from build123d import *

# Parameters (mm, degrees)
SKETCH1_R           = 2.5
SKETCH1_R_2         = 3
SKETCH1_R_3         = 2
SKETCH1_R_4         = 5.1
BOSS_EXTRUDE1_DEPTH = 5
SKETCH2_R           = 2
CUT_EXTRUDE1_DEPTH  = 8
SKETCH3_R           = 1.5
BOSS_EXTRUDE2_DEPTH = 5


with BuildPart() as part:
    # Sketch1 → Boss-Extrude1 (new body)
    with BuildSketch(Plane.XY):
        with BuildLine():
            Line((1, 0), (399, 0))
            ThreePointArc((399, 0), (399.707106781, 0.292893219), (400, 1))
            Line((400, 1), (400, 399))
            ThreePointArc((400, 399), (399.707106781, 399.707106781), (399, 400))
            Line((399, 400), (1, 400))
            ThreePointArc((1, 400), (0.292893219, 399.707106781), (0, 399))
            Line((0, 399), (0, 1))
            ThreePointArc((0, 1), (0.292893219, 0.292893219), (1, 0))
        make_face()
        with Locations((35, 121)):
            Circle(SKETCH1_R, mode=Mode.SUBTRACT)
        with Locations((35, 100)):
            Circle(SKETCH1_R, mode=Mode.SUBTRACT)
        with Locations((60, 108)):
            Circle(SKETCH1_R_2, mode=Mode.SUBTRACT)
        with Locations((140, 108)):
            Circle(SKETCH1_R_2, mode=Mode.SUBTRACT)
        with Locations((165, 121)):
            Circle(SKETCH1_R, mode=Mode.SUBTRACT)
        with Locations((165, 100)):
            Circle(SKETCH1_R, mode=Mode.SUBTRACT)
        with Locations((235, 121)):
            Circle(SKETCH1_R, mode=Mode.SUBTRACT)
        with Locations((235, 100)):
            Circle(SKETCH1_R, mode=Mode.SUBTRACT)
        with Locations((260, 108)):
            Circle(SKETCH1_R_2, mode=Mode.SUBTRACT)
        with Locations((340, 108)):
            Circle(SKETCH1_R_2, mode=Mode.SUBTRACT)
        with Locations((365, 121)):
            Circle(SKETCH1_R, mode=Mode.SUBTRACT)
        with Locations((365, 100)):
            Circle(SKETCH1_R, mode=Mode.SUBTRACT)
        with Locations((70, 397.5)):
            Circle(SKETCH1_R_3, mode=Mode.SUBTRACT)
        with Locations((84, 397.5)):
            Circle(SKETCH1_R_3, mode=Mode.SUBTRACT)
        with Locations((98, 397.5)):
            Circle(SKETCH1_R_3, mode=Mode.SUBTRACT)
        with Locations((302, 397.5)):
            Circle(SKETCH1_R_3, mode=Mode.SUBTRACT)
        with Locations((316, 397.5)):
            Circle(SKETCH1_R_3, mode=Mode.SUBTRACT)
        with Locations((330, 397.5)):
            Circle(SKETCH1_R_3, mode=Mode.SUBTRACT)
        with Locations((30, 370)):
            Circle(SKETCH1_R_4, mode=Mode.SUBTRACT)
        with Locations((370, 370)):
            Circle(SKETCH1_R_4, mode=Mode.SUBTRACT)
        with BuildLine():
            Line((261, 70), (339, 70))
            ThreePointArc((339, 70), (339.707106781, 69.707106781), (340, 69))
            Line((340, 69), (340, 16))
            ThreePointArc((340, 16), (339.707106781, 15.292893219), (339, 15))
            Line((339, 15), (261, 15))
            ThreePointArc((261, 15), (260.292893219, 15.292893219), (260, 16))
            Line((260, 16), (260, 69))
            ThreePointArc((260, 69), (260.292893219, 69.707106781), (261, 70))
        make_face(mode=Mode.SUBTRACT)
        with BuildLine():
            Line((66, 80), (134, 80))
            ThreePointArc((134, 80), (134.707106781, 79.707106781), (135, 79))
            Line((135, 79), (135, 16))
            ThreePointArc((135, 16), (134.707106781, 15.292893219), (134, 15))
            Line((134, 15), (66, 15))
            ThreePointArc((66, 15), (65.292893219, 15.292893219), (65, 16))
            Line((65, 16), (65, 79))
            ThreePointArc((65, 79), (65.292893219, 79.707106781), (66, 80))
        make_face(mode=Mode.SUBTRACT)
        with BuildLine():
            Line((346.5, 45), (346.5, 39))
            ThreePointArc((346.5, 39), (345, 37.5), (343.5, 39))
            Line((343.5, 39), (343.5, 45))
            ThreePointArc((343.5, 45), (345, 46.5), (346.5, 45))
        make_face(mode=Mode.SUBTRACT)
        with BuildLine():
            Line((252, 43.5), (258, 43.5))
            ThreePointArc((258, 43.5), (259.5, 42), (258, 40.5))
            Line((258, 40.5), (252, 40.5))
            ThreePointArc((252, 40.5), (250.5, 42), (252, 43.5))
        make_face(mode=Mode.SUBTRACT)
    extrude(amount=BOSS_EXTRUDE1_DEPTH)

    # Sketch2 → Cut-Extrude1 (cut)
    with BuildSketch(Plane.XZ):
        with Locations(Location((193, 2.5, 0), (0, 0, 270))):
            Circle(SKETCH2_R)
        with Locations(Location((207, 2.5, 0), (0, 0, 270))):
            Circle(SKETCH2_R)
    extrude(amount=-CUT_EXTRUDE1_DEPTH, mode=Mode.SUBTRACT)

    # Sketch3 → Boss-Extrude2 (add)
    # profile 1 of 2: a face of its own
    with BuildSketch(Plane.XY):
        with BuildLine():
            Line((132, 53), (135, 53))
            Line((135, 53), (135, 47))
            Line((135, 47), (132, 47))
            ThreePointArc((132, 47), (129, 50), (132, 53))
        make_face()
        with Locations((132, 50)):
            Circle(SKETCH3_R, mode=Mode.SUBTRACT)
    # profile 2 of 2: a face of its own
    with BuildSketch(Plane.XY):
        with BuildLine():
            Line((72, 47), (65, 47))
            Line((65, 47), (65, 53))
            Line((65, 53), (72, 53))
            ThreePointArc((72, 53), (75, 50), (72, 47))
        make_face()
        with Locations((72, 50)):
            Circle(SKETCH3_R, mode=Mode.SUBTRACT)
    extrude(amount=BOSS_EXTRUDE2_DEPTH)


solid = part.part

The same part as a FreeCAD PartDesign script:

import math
import FreeCAD as App
import Part
import Sketcher
from FreeCAD import Vector
Q = App.Units.Quantity

doc = App.newDocument("Part")
body = doc.addObject("PartDesign::Body", "Body")

sketch1 = body.newObject("Sketcher::SketchObject", "Sketch")
sketch1.AttachmentSupport = (doc.getObject("XY_Plane"), [""])
sketch1.MapMode = "FlatFace"
sketch1.addGeometry([
    Part.LineSegment(Vector(1, 0, 0), Vector(399, 0, 0)),
    Part.ArcOfCircle(Part.Circle(Vector(399, 1, 0), Vector(0, 0, 1), 1), math.radians(-90), math.radians(0)),
    Part.LineSegment(Vector(400, 1, 0), Vector(400, 399, 0)),
    Part.ArcOfCircle(Part.Circle(Vector(399, 399, 0), Vector(0, 0, 1), 1), math.radians(0), math.radians(90)),
    Part.LineSegment(Vector(399, 400, 0), Vector(1, 400, 0)),
    Part.ArcOfCircle(Part.Circle(Vector(1, 399, 0), Vector(0, 0, 1), 1), math.radians(90), math.radians(180)),
    Part.LineSegment(Vector(0, 399, 0), Vector(0, 1, 0)),
    Part.ArcOfCircle(Part.Circle(Vector(1, 1, 0), Vector(0, 0, 1), 1), math.radians(-180), math.radians(-90)),
    Part.ArcOfCircle(Part.Circle(Vector(66, 79, 0), Vector(0, 0, 1), 1), math.radians(90), math.radians(180)),
    Part.LineSegment(Vector(66, 80, 0), Vector(134, 80, 0)),
    Part.ArcOfCircle(Part.Circle(Vector(134, 79, 0), Vector(0, 0, 1), 1), math.radians(0), math.radians(90)),
    Part.LineSegment(Vector(135, 79, 0), Vector(135, 16, 0)),
    Part.ArcOfCircle(Part.Circle(Vector(134, 16, 0), Vector(0, 0, 1), 1), math.radians(-90), math.radians(0)),
    Part.LineSegment(Vector(134, 15, 0), Vector(66, 15, 0)),
    Part.ArcOfCircle(Part.Circle(Vector(66, 16, 0), Vector(0, 0, 1), 1), math.radians(-180), math.radians(-90)),
    Part.LineSegment(Vector(65, 16, 0), Vector(65, 79, 0)),
    Part.Circle(Vector(35, 100, 0), Vector(0, 0, 1), 2.5),
    Part.Circle(Vector(60, 108, 0), Vector(0, 0, 1), 3),
    Part.Circle(Vector(140, 108, 0), Vector(0, 0, 1), 3),
    Part.Circle(Vector(165, 100, 0), Vector(0, 0, 1), 2.5),
    Part.Circle(Vector(35, 121, 0), Vector(0, 0, 1), 2.5),
    Part.Circle(Vector(165, 121, 0), Vector(0, 0, 1), 2.5),
    Part.ArcOfCircle(Part.Circle(Vector(252, 42, 0), Vector(0, 0, 1), 1.5), math.radians(90), math.radians(270)),
    Part.LineSegment(Vector(252, 43.5, 0), Vector(258, 43.5, 0)),
    Part.ArcOfCircle(Part.Circle(Vector(258, 42, 0), Vector(0, 0, 1), 1.5), math.radians(-90), math.radians(90)),
    Part.LineSegment(Vector(258, 40.5, 0), Vector(252, 40.5, 0)),
    Part.Circle(Vector(235, 100, 0), Vector(0, 0, 1), 2.5),
    Part.Circle(Vector(260, 108, 0), Vector(0, 0, 1), 3),
    Part.ArcOfCircle(Part.Circle(Vector(261, 69, 0), Vector(0, 0, 1), 1), math.radians(90), math.radians(180)),
    Part.LineSegment(Vector(261, 70, 0), Vector(339, 70, 0)),
    Part.ArcOfCircle(Part.Circle(Vector(339, 69, 0), Vector(0, 0, 1), 1), math.radians(0), math.radians(90)),
    Part.LineSegment(Vector(340, 69, 0), Vector(340, 16, 0)),
    Part.ArcOfCircle(Part.Circle(Vector(339, 16, 0), Vector(0, 0, 1), 1), math.radians(-90), math.radians(0)),
    Part.LineSegment(Vector(339, 15, 0), Vector(261, 15, 0)),
    Part.ArcOfCircle(Part.Circle(Vector(261, 16, 0), Vector(0, 0, 1), 1), math.radians(-180), math.radians(-90)),
    Part.LineSegment(Vector(260, 16, 0), Vector(260, 69, 0)),
    Part.ArcOfCircle(Part.Circle(Vector(345, 45, 0), Vector(0, 0, 1), 1.5), math.radians(0), math.radians(180)),
    Part.LineSegment(Vector(346.5, 45, 0), Vector(346.5, 39, 0)),
    Part.ArcOfCircle(Part.Circle(Vector(345, 39, 0), Vector(0, 0, 1), 1.5), math.radians(180), math.radians(360)),
    Part.LineSegment(Vector(343.5, 39, 0), Vector(343.5, 45, 0)),
    Part.Circle(Vector(340, 108, 0), Vector(0, 0, 1), 3),
    Part.Circle(Vector(365, 100, 0), Vector(0, 0, 1), 2.5),
    Part.Circle(Vector(235, 121, 0), Vector(0, 0, 1), 2.5),
    Part.Circle(Vector(365, 121, 0), Vector(0, 0, 1), 2.5),
    Part.Circle(Vector(30, 370, 0), Vector(0, 0, 1), 5.1),
    Part.Circle(Vector(70, 397.5, 0), Vector(0, 0, 1), 2),
    Part.Circle(Vector(84, 397.5, 0), Vector(0, 0, 1), 2),
    Part.Circle(Vector(98, 397.5, 0), Vector(0, 0, 1), 2),
    Part.Circle(Vector(302, 397.5, 0), Vector(0, 0, 1), 2),
    Part.Circle(Vector(316, 397.5, 0), Vector(0, 0, 1), 2),
    Part.Circle(Vector(330, 397.5, 0), Vector(0, 0, 1), 2),
    Part.Circle(Vector(370, 370, 0), Vector(0, 0, 1), 5.1),
], False)
sketch1.addConstraint([
    Sketcher.Constraint("Tangent", 0, 2, 1, 1),
    Sketcher.Constraint("Tangent", 1, 2, 2, 1),
    Sketcher.Constraint("Tangent", 2, 2, 3, 1),
    Sketcher.Constraint("Tangent", 3, 2, 4, 1),
    Sketcher.Constraint("Tangent", 4, 2, 5, 1),
    Sketcher.Constraint("Tangent", 5, 2, 6, 1),
    Sketcher.Constraint("Tangent", 6, 2, 7, 1),
    Sketcher.Constraint("Tangent", 7, 2, 0, 1),
    Sketcher.Constraint("Tangent", 8, 1, 9, 1),
    Sketcher.Constraint("Tangent", 9, 2, 10, 2),
    Sketcher.Constraint("Tangent", 10, 1, 11, 1),
    Sketcher.Constraint("Tangent", 11, 2, 12, 2),
    Sketcher.Constraint("Tangent", 12, 1, 13, 1),
    Sketcher.Constraint("Tangent", 13, 2, 14, 2),
    Sketcher.Constraint("Tangent", 14, 1, 15, 1),
    Sketcher.Constraint("Tangent", 15, 2, 8, 2),
    Sketcher.Constraint("Tangent", 22, 1, 23, 1),
    Sketcher.Constraint("Tangent", 23, 2, 24, 2),
    Sketcher.Constraint("Tangent", 24, 1, 25, 1),
    Sketcher.Constraint("Tangent", 25, 2, 22, 2),
    Sketcher.Constraint("Tangent", 28, 1, 29, 1),
    Sketcher.Constraint("Tangent", 29, 2, 30, 2),
    Sketcher.Constraint("Tangent", 30, 1, 31, 1),
    Sketcher.Constraint("Tangent", 31, 2, 32, 2),
    Sketcher.Constraint("Tangent", 32, 1, 33, 1),
    Sketcher.Constraint("Tangent", 33, 2, 34, 2),
    Sketcher.Constraint("Tangent", 34, 1, 35, 1),
    Sketcher.Constraint("Tangent", 35, 2, 28, 2),
    Sketcher.Constraint("Tangent", 36, 1, 37, 1),
    Sketcher.Constraint("Tangent", 37, 2, 38, 2),
    Sketcher.Constraint("Tangent", 38, 1, 39, 1),
    Sketcher.Constraint("Tangent", 39, 2, 36, 2),
    Sketcher.Constraint("Horizontal", 0),
    Sketcher.Constraint("Vertical", 2),
    Sketcher.Constraint("Horizontal", 4),
    Sketcher.Constraint("Vertical", 6),
    Sketcher.Constraint("Horizontal", 9),
    Sketcher.Constraint("Vertical", 11),
    Sketcher.Constraint("Horizontal", 13),
    Sketcher.Constraint("Vertical", 15),
    Sketcher.Constraint("Horizontal", 23),
    Sketcher.Constraint("Horizontal", 25),
    Sketcher.Constraint("Horizontal", 29),
    Sketcher.Constraint("Vertical", 31),
    Sketcher.Constraint("Horizontal", 33),
    Sketcher.Constraint("Vertical", 35),
    Sketcher.Constraint("Vertical", 37),
    Sketcher.Constraint("Vertical", 39),
    Sketcher.Constraint("Equal", 1, 3),
    Sketcher.Constraint("Equal", 3, 5),
    Sketcher.Constraint("Equal", 5, 7),
    Sketcher.Constraint("Equal", 7, 8),
    Sketcher.Constraint("Equal", 8, 10),
    Sketcher.Constraint("Equal", 10, 12),
    Sketcher.Constraint("Equal", 12, 14),
    Sketcher.Constraint("Equal", 17, 18),
    Sketcher.Constraint("Equal", 16, 19),
    Sketcher.Constraint("Equal", 19, 20),
    Sketcher.Constraint("Equal", 20, 21),
    Sketcher.Constraint("Equal", 21, 26),
    Sketcher.Constraint("Equal", 18, 27),
    Sketcher.Constraint("Equal", 14, 28),
    Sketcher.Constraint("Equal", 28, 30),
    Sketcher.Constraint("Equal", 30, 32),
    Sketcher.Constraint("Equal", 32, 34),
    Sketcher.Constraint("Equal", 24, 36),
    Sketcher.Constraint("Equal", 27, 40),
    Sketcher.Constraint("Equal", 26, 41),
    Sketcher.Constraint("Equal", 41, 42),
    Sketcher.Constraint("Equal", 42, 43),
    Sketcher.Constraint("Equal", 45, 46),
    Sketcher.Constraint("Equal", 46, 47),
    Sketcher.Constraint("Equal", 47, 48),
    Sketcher.Constraint("Equal", 48, 49),
    Sketcher.Constraint("Equal", 49, 50),
    Sketcher.Constraint("Equal", 44, 51),
    Sketcher.Constraint("PointOnObject", 0, 2, -1),
    Sketcher.Constraint("PointOnObject", 5, 2, -2),
    Sketcher.Constraint("Horizontal", 17, 3, 18, 3),
    Sketcher.Constraint("Horizontal", 16, 3, 19, 3),
    Sketcher.Constraint("Horizontal", 20, 3, 21, 3),
    Sketcher.Constraint("Horizontal", 19, 3, 26, 3),
    Sketcher.Constraint("Horizontal", 18, 3, 27, 3),
    Sketcher.Constraint("Horizontal", 14, 3, 32, 3),
    Sketcher.Constraint("Horizontal", 27, 3, 40, 3),
    Sketcher.Constraint("Horizontal", 26, 3, 41, 3),
    Sketcher.Constraint("Horizontal", 21, 3, 42, 3),
    Sketcher.Constraint("Horizontal", 42, 3, 43, 3),
    Sketcher.Constraint("Horizontal", 45, 3, 46, 3),
    Sketcher.Constraint("Horizontal", 46, 3, 47, 3),
    Sketcher.Constraint("Horizontal", 47, 3, 48, 3),
    Sketcher.Constraint("Horizontal", 48, 3, 49, 3),
    Sketcher.Constraint("Horizontal", 49, 3, 50, 3),
    Sketcher.Constraint("Horizontal", 44, 3, 51, 3),
    Sketcher.Constraint("Vertical", 16, 3, 20, 3),
    Sketcher.Constraint("Vertical", 19, 3, 21, 3),
    Sketcher.Constraint("Vertical", 26, 3, 42, 3),
    Sketcher.Constraint("Vertical", 41, 3, 43, 3),
    Sketcher.Constraint("Vertical", 40, 3, 30, 1),
    Sketcher.Constraint("Vertical", 27, 3, 34, 1),
    Sketcher.Constraint("Equal", 4, 2),
    Sketcher.Constraint("Equal", 25, 37),
    Sketcher.Constraint("Diameter", 16, Q("5 mm")),
    Sketcher.Constraint("Diameter", 17, Q("6 mm")),
    Sketcher.Constraint("Diameter", 45, Q("4 mm")),
    Sketcher.Constraint("Radius", 1, Q("1 mm")),
    Sketcher.Constraint("Diameter", 44, Q("10.2 mm")),
    Sketcher.Constraint("Radius", 22, Q("1.5 mm")),
    Sketcher.Constraint("DistanceX", 0, 1, 0, 2, Q("398 mm")),
    Sketcher.Constraint("DistanceX", 9, 1, 9, 2, Q("68 mm")),
    Sketcher.Constraint("DistanceX", 23, 1, 23, 2, Q("6 mm")),
    Sketcher.Constraint("DistanceX", 29, 1, 29, 2, Q("78 mm")),
    Sketcher.Constraint("DistanceY", 11, 2, 11, 1, Q("63 mm")),
    Sketcher.Constraint("DistanceY", 31, 2, 31, 1, Q("53 mm")),
    Sketcher.Constraint("DistanceX", -1, 1, 8, 3, Q("66 mm")),
    Sketcher.Constraint("DistanceY", -1, 1, 8, 3, Q("79 mm")),
    Sketcher.Constraint("DistanceX", -1, 1, 16, 3, Q("35 mm")),
    Sketcher.Constraint("DistanceY", -1, 1, 16, 3, Q("100 mm")),
    Sketcher.Constraint("DistanceX", -1, 1, 17, 3, Q("60 mm")),
    Sketcher.Constraint("DistanceY", -1, 1, 17, 3, Q("108 mm")),
    Sketcher.Constraint("DistanceX", -1, 1, 18, 3, Q("140 mm")),
    Sketcher.Constraint("DistanceX", -1, 1, 19, 3, Q("165 mm")),
    Sketcher.Constraint("DistanceY", -1, 1, 20, 3, Q("121 mm")),
    Sketcher.Constraint("DistanceX", -1, 1, 22, 3, Q("252 mm")),
    Sketcher.Constraint("DistanceY", -1, 1, 22, 3, Q("42 mm")),
    Sketcher.Constraint("DistanceX", -1, 1, 26, 3, Q("235 mm")),
    Sketcher.Constraint("DistanceX", -1, 1, 27, 3, Q("260 mm")),
    Sketcher.Constraint("DistanceX", -1, 1, 36, 3, Q("345 mm")),
    Sketcher.Constraint("DistanceY", -1, 1, 36, 3, Q("45 mm")),
    Sketcher.Constraint("DistanceX", -1, 1, 41, 3, Q("365 mm")),
    Sketcher.Constraint("DistanceX", -1, 1, 44, 3, Q("30 mm")),
    Sketcher.Constraint("DistanceY", -1, 1, 44, 3, Q("370 mm")),
    Sketcher.Constraint("DistanceX", -1, 1, 45, 3, Q("70 mm")),
    Sketcher.Constraint("DistanceX", -1, 1, 46, 3, Q("84 mm")),
    Sketcher.Constraint("DistanceX", -1, 1, 47, 3, Q("98 mm")),
    Sketcher.Constraint("DistanceX", -1, 1, 48, 3, Q("302 mm")),
    Sketcher.Constraint("DistanceX", -1, 1, 49, 3, Q("316 mm")),
    Sketcher.Constraint("DistanceX", -1, 1, 50, 3, Q("330 mm")),
    Sketcher.Constraint("DistanceX", -1, 1, 51, 3, Q("370 mm")),
    Sketcher.Constraint("DistanceY", -1, 1, 45, 3, Q("397.5 mm")),
])
pad1 = body.newObject("PartDesign::Pad", "Pad")
pad1.Profile = sketch1
pad1.Length = 5

sketch2 = body.newObject("Sketcher::SketchObject", "Sketch001")
sketch2.AttachmentSupport = (doc.getObject("XZ_Plane"), [""])
sketch2.MapMode = "FlatFace"
sketch2.addGeometry([
    Part.Circle(Vector(193, 2.5, 0), Vector(0, 0, 1), 2),
    Part.Circle(Vector(207, 2.5, 0), Vector(0, 0, 1), 2),
], False)
sketch2.addConstraint([
    Sketcher.Constraint("Equal", 0, 1),
    Sketcher.Constraint("Horizontal", 0, 3, 1, 3),
    Sketcher.Constraint("Diameter", 0, Q("4 mm")),
    Sketcher.Constraint("DistanceX", -1, 1, 0, 3, Q("193 mm")),
    Sketcher.Constraint("DistanceX", -1, 1, 1, 3, Q("207 mm")),
    Sketcher.Constraint("DistanceY", -1, 1, 0, 3, Q("2.5 mm")),
])
pocket1 = body.newObject("PartDesign::Pocket", "Pocket")
pocket1.Profile = sketch2
pocket1.Length = 8

sketch3 = body.newObject("Sketcher::SketchObject", "Sketch002")
sketch3.AttachmentSupport = (doc.getObject("XY_Plane"), [""])
sketch3.MapMode = "FlatFace"
sketch3.addGeometry([
    Part.LineSegment(Vector(135, 53, 0), Vector(132, 53, 0)),
    Part.ArcOfCircle(Part.Circle(Vector(132, 50, 0), Vector(0, 0, 1), 3), math.radians(90), math.radians(270)),
    Part.LineSegment(Vector(132, 47, 0), Vector(135, 47, 0)),
    Part.LineSegment(Vector(135, 47, 0), Vector(135, 53, 0)),
    Part.Circle(Vector(132, 50, 0), Vector(0, 0, 1), 1.5),
    Part.LineSegment(Vector(65, 47, 0), Vector(72, 47, 0)),
    Part.ArcOfCircle(Part.Circle(Vector(72, 50, 0), Vector(0, 0, 1), 3), math.radians(-90), math.radians(90)),
    Part.LineSegment(Vector(72, 53, 0), Vector(65, 53, 0)),
    Part.LineSegment(Vector(65, 53, 0), Vector(65, 47, 0)),
    Part.Circle(Vector(72, 50, 0), Vector(0, 0, 1), 1.5),
], False)
sketch3.addConstraint([
    Sketcher.Constraint("Tangent", 0, 2, 1, 1),
    Sketcher.Constraint("Tangent", 1, 2, 2, 1),
    Sketcher.Constraint("Coincident", 2, 2, 3, 1),
    Sketcher.Constraint("Coincident", 3, 2, 0, 1),
    Sketcher.Constraint("Tangent", 5, 2, 6, 1),
    Sketcher.Constraint("Tangent", 6, 2, 7, 1),
    Sketcher.Constraint("Coincident", 7, 2, 8, 1),
    Sketcher.Constraint("Coincident", 8, 2, 5, 1),
    Sketcher.Constraint("Horizontal", 0),
    Sketcher.Constraint("Horizontal", 2),
    Sketcher.Constraint("Vertical", 3),
    Sketcher.Constraint("Horizontal", 5),
    Sketcher.Constraint("Horizontal", 7),
    Sketcher.Constraint("Vertical", 8),
    Sketcher.Constraint("Coincident", 4, 3, 1, 3),
    Sketcher.Constraint("Coincident", 9, 3, 6, 3),
    Sketcher.Constraint("Equal", 1, 6),
    Sketcher.Constraint("Equal", 4, 9),
    Sketcher.Constraint("Horizontal", 4, 3, 6, 3),
    Sketcher.Constraint("Diameter", 4, Q("3 mm")),
    Sketcher.Constraint("Radius", 1, Q("3 mm")),
    Sketcher.Constraint("DistanceX", 0, 2, 0, 1, Q("3 mm")),
    Sketcher.Constraint("DistanceX", 5, 1, 5, 2, Q("7 mm")),
    Sketcher.Constraint("DistanceX", -1, 1, 1, 3, Q("132 mm")),
    Sketcher.Constraint("DistanceY", -1, 1, 1, 3, Q("50 mm")),
    Sketcher.Constraint("DistanceX", -1, 1, 6, 3, Q("72 mm")),
])
pad2 = body.newObject("PartDesign::Pad", "Pad001")
pad2.Profile = sketch3
pad2.Length = 5

doc.recompute()
